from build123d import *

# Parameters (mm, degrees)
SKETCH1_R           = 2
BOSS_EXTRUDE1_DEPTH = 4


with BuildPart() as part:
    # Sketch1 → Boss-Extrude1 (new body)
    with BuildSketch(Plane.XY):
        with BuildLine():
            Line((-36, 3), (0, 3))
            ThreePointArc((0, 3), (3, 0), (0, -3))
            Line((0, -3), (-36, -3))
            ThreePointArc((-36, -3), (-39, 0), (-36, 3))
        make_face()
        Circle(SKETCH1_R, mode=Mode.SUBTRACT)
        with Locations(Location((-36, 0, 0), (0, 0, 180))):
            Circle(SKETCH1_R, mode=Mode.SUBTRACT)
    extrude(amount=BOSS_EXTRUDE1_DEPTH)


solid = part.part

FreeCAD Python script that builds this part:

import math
import FreeCAD as App
import Part
import Sketcher
Q = App.Units.Quantity

doc = App.newDocument("Part")
body = doc.addObject("PartDesign::Body", "Body")

sketch1 = doc.addObject("Sketcher::SketchObject", "Sketch")
body.addObject(sketch1)
sketch1.AttachmentSupport = (doc.XY_Plane, [""])
sketch1.MapMode = "FlatFace"
sketch1.addGeometry([
    Part.LineSegment(App.Vector(0, 3, 0), App.Vector(-36, 3, 0)),
    Part.ArcOfCircle(Part.Circle(App.Vector(-36, 0, 0), App.Vector(0, 0, 1), 3), math.radians(90), math.radians(270)),
    Part.LineSegment(App.Vector(-36, -3, 0), App.Vector(0, -3, 0)),
    Part.ArcOfCircle(Part.Circle(App.Vector(0, 0, 0), App.Vector(0, 0, 1), 3), math.radians(-90), math.radians(90)),
    Part.Circle(App.Vector(0, 0, 0), App.Vector(0, 0, 1), 2),
    Part.Circle(App.Vector(-36, 0, 0), App.Vector(0, 0, 1), 2),
], False)
sketch1.addConstraint([
    Sketcher.Constraint("Tangent", 0, 2, 1, 1),
    Sketcher.Constraint("Tangent", 1, 2, 2, 1),
    Sketcher.Constraint("Tangent", 2, 2, 3, 1),
    Sketcher.Constraint("Tangent", 3, 2, 0, 1),
    Sketcher.Constraint("Horizontal", 0),
    Sketcher.Constraint("Horizontal", 2),
    Sketcher.Constraint("Coincident", 3, 3, -1, 1),
    Sketcher.Constraint("Coincident", 4, 3, -1, 1),
    Sketcher.Constraint("Coincident", 5, 3, 1, 3),
    Sketcher.Constraint("Equal", 4, 5),
    Sketcher.Constraint("Diameter", 4, Q("4 mm")),
    Sketcher.Constraint("Radius", 1, Q("3 mm")),
    Sketcher.Constraint("DistanceX", 0, 2, 0, 1, Q("36 mm")),
])
pad1 = doc.addObject("PartDesign::Pad", "Pad")
body.addObject(pad1)
pad1.Profile = sketch1
pad1.Length = 4

doc.recompute()
